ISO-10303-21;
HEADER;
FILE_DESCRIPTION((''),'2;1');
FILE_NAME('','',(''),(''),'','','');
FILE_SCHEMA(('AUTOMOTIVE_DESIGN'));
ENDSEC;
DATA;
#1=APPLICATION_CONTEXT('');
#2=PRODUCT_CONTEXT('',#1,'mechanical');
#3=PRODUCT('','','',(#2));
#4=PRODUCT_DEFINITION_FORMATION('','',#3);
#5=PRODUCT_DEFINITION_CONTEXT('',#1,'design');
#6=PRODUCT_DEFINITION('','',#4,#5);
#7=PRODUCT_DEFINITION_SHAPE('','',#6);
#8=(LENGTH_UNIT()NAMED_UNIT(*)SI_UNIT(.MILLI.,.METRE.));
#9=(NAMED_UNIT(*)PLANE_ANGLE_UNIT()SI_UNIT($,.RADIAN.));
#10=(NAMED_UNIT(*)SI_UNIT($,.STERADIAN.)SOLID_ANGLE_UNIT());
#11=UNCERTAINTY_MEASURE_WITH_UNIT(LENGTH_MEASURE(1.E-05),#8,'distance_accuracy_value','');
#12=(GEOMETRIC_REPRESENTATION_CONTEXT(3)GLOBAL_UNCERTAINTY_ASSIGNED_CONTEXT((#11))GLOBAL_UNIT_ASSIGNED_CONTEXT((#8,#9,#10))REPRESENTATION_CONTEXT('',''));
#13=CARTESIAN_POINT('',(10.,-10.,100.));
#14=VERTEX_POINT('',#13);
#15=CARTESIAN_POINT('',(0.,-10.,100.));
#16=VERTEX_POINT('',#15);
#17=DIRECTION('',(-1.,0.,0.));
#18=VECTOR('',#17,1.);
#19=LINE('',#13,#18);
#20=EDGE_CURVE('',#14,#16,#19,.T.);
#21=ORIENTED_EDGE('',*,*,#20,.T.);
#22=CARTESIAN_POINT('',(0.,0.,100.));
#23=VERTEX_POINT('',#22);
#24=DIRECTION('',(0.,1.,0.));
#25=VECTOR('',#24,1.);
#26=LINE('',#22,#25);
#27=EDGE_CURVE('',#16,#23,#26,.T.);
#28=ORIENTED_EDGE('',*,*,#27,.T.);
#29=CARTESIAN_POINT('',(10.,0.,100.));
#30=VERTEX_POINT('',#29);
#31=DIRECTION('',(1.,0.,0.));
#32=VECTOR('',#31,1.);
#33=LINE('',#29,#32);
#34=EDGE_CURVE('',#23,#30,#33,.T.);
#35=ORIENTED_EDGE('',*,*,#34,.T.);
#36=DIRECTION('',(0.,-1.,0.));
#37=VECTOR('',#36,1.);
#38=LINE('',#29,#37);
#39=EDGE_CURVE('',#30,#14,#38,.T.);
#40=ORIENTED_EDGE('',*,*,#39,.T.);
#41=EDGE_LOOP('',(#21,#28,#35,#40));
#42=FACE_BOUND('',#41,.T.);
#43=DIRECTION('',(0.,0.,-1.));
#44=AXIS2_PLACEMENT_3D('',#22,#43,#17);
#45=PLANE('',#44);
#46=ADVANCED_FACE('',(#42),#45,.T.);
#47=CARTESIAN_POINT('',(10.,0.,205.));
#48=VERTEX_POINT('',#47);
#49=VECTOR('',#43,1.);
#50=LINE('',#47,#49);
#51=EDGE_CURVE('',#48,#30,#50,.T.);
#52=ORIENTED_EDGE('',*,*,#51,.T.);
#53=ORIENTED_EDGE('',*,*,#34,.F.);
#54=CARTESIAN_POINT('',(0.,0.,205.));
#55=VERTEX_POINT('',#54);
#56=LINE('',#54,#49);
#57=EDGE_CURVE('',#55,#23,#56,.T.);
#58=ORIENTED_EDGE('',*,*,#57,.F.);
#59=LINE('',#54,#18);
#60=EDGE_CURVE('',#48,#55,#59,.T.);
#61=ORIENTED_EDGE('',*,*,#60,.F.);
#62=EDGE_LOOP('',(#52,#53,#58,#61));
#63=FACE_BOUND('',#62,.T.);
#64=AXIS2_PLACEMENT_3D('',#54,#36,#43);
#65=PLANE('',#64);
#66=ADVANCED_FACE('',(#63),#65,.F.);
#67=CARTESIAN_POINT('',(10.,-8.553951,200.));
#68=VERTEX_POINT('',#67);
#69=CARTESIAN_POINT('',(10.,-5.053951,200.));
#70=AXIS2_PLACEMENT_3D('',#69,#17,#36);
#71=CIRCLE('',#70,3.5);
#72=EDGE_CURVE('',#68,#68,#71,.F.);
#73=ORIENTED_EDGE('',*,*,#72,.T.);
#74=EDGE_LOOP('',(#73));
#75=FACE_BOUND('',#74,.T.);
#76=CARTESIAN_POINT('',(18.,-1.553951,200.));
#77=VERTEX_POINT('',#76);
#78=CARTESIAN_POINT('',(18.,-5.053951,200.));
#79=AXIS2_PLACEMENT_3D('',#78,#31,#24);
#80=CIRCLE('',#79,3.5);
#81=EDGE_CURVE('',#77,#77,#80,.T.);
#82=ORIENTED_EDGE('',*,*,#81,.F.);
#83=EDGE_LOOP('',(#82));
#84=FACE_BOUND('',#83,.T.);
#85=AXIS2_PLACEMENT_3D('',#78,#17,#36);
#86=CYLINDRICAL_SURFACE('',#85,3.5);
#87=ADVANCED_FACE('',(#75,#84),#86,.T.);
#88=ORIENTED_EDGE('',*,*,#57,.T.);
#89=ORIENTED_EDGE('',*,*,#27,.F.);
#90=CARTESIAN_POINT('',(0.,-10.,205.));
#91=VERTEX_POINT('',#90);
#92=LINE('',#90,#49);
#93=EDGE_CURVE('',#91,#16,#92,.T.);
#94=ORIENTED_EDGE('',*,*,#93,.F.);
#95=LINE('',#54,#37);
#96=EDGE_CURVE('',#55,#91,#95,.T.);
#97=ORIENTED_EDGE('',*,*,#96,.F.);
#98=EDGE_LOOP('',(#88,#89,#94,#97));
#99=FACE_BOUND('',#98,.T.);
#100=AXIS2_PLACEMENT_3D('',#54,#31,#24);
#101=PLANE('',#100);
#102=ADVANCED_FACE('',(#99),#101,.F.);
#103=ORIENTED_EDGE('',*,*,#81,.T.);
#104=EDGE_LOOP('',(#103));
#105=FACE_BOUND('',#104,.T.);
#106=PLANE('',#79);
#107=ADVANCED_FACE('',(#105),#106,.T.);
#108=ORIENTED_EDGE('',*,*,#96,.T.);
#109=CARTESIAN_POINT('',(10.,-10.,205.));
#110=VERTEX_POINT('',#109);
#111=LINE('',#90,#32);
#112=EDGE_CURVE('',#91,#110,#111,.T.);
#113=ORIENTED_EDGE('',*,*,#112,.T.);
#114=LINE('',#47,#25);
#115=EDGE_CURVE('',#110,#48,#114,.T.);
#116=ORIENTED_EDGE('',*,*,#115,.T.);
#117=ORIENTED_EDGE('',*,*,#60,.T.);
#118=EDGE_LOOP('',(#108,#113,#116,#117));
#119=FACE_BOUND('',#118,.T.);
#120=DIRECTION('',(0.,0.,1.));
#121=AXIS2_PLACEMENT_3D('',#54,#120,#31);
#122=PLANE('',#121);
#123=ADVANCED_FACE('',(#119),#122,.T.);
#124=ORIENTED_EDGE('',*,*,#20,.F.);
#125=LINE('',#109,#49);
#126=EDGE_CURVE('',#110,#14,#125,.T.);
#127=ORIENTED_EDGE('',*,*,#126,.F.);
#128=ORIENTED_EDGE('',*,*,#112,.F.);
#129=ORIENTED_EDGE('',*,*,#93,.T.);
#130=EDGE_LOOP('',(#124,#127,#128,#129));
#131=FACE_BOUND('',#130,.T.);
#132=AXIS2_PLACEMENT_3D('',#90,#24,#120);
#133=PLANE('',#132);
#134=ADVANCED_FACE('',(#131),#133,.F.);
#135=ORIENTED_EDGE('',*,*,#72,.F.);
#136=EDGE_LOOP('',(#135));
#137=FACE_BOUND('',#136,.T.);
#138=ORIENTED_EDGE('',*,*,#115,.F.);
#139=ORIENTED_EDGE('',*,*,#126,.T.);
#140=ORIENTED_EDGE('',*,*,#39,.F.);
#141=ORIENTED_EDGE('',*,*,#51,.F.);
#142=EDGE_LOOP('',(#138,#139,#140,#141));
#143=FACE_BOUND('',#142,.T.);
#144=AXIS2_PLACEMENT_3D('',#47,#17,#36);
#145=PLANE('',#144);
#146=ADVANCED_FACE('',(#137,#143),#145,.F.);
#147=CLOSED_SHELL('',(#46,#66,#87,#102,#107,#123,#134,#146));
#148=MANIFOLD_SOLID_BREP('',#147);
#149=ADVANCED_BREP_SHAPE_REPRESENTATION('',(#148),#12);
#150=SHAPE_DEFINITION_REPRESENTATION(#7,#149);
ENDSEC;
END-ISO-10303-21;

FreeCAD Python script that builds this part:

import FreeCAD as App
import Part
import Sketcher

V = App.Vector


def add_polygon(sketch, points):
    """Adds a closed chain of lines whose ends are joined by coincident constraints."""
    first, n = sketch.GeometryCount, len(points)
    for a, b in zip(points, points[1:] + points[:1]):
        sketch.addGeometry(Part.LineSegment(App.Vector(*a, 0), App.Vector(*b, 0)), False)
    for i in range(n):
        sketch.addConstraint(Sketcher.Constraint("Coincident", first + i, 2, first + (i + 1) % n, 1))

doc = App.newDocument("Part")
body = doc.addObject("PartDesign::Body", "Body")

# Sketch on XY plane
sketch1 = doc.addObject("Sketcher::SketchObject", "Sketch")
body.addObject(sketch1)
sketch1.AttachmentSupport = (doc.XY_Plane, [""])
sketch1.MapMode = "FlatFace"
add_polygon(sketch1, [(0, 0), (0, -10), (10, -10), (10, 0)])  # lines 0-3
sketch1.addConstraint(Sketcher.Constraint("Vertical", 0))
sketch1.addConstraint(Sketcher.Constraint("Horizontal", 1))
sketch1.addConstraint(Sketcher.Constraint("Vertical", 2))
sketch1.addConstraint(Sketcher.Constraint("Horizontal", 3))
sketch1.addConstraint(Sketcher.Constraint("Coincident", 3, 2, -1, 1))
sketch1.addConstraint(Sketcher.Constraint("Equal", 3, 0))
sketch1.addConstraint(Sketcher.Constraint("DistanceX", 1, 1, 1, 2, 10.0))
pad1 = doc.addObject("PartDesign::Pad", "Pad")
body.addObject(pad1)
pad1.Profile = sketch1
pad1.Length = 205

# Sketch on YZ plane
sketch2 = doc.addObject("Sketcher::SketchObject", "Sketch001")
body.addObject(sketch2)
sketch2.AttachmentSupport = (doc.YZ_Plane, [""])
sketch2.MapMode = "FlatFace"
sketch2.AttachmentOffset = App.Placement(V(0, 0, 10), App.Rotation())
sketch2.addGeometry(Part.Circle(V(-5.1, 200, 0), V(0, 0, 1), 3.5), False)
sketch2.addConstraint(Sketcher.Constraint("Diameter", 0, 7.0))
sketch2.addConstraint(Sketcher.Constraint("DistanceY", -1, 1, 0, 3, 200.0))
sketch2.addConstraint(Sketcher.Constraint("DistanceX", 0, 3, -1, 1, 5.053951))
pad2 = doc.addObject("PartDesign::Pad", "Pad001")
body.addObject(pad2)
pad2.Profile = sketch2
pad2.Length = 8

# Sketch on XY plane
sketch3 = doc.addObject("Sketcher::SketchObject", "Sketch002")
body.addObject(sketch3)
sketch3.AttachmentSupport = (doc.XY_Plane, [""])
sketch3.MapMode = "FlatFace"
add_polygon(sketch3, [(10, 0), (10, -10), (0, -10), (0, 0)])  # lines 0-3
sketch3.addConstraint(Sketcher.Constraint("Vertical", 0))
sketch3.addConstraint(Sketcher.Constraint("Horizontal", 1))
sketch3.addConstraint(Sketcher.Constraint("Vertical", 2))
sketch3.addConstraint(Sketcher.Constraint("Horizontal", 3))
sketch3.addConstraint(Sketcher.Constraint("Coincident", 2, 2, -1, 1))
sketch3.addConstraint(Sketcher.Constraint("Equal", 3, 0))
sketch3.addConstraint(Sketcher.Constraint("DistanceX", 1, 2, 1, 1, 10.0))
pocket1 = doc.addObject("PartDesign::Pocket", "Pocket")
body.addObject(pocket1)
pocket1.Profile = sketch3
pocket1.Length = 100
pocket1.Reversed = True

doc.recompute()
